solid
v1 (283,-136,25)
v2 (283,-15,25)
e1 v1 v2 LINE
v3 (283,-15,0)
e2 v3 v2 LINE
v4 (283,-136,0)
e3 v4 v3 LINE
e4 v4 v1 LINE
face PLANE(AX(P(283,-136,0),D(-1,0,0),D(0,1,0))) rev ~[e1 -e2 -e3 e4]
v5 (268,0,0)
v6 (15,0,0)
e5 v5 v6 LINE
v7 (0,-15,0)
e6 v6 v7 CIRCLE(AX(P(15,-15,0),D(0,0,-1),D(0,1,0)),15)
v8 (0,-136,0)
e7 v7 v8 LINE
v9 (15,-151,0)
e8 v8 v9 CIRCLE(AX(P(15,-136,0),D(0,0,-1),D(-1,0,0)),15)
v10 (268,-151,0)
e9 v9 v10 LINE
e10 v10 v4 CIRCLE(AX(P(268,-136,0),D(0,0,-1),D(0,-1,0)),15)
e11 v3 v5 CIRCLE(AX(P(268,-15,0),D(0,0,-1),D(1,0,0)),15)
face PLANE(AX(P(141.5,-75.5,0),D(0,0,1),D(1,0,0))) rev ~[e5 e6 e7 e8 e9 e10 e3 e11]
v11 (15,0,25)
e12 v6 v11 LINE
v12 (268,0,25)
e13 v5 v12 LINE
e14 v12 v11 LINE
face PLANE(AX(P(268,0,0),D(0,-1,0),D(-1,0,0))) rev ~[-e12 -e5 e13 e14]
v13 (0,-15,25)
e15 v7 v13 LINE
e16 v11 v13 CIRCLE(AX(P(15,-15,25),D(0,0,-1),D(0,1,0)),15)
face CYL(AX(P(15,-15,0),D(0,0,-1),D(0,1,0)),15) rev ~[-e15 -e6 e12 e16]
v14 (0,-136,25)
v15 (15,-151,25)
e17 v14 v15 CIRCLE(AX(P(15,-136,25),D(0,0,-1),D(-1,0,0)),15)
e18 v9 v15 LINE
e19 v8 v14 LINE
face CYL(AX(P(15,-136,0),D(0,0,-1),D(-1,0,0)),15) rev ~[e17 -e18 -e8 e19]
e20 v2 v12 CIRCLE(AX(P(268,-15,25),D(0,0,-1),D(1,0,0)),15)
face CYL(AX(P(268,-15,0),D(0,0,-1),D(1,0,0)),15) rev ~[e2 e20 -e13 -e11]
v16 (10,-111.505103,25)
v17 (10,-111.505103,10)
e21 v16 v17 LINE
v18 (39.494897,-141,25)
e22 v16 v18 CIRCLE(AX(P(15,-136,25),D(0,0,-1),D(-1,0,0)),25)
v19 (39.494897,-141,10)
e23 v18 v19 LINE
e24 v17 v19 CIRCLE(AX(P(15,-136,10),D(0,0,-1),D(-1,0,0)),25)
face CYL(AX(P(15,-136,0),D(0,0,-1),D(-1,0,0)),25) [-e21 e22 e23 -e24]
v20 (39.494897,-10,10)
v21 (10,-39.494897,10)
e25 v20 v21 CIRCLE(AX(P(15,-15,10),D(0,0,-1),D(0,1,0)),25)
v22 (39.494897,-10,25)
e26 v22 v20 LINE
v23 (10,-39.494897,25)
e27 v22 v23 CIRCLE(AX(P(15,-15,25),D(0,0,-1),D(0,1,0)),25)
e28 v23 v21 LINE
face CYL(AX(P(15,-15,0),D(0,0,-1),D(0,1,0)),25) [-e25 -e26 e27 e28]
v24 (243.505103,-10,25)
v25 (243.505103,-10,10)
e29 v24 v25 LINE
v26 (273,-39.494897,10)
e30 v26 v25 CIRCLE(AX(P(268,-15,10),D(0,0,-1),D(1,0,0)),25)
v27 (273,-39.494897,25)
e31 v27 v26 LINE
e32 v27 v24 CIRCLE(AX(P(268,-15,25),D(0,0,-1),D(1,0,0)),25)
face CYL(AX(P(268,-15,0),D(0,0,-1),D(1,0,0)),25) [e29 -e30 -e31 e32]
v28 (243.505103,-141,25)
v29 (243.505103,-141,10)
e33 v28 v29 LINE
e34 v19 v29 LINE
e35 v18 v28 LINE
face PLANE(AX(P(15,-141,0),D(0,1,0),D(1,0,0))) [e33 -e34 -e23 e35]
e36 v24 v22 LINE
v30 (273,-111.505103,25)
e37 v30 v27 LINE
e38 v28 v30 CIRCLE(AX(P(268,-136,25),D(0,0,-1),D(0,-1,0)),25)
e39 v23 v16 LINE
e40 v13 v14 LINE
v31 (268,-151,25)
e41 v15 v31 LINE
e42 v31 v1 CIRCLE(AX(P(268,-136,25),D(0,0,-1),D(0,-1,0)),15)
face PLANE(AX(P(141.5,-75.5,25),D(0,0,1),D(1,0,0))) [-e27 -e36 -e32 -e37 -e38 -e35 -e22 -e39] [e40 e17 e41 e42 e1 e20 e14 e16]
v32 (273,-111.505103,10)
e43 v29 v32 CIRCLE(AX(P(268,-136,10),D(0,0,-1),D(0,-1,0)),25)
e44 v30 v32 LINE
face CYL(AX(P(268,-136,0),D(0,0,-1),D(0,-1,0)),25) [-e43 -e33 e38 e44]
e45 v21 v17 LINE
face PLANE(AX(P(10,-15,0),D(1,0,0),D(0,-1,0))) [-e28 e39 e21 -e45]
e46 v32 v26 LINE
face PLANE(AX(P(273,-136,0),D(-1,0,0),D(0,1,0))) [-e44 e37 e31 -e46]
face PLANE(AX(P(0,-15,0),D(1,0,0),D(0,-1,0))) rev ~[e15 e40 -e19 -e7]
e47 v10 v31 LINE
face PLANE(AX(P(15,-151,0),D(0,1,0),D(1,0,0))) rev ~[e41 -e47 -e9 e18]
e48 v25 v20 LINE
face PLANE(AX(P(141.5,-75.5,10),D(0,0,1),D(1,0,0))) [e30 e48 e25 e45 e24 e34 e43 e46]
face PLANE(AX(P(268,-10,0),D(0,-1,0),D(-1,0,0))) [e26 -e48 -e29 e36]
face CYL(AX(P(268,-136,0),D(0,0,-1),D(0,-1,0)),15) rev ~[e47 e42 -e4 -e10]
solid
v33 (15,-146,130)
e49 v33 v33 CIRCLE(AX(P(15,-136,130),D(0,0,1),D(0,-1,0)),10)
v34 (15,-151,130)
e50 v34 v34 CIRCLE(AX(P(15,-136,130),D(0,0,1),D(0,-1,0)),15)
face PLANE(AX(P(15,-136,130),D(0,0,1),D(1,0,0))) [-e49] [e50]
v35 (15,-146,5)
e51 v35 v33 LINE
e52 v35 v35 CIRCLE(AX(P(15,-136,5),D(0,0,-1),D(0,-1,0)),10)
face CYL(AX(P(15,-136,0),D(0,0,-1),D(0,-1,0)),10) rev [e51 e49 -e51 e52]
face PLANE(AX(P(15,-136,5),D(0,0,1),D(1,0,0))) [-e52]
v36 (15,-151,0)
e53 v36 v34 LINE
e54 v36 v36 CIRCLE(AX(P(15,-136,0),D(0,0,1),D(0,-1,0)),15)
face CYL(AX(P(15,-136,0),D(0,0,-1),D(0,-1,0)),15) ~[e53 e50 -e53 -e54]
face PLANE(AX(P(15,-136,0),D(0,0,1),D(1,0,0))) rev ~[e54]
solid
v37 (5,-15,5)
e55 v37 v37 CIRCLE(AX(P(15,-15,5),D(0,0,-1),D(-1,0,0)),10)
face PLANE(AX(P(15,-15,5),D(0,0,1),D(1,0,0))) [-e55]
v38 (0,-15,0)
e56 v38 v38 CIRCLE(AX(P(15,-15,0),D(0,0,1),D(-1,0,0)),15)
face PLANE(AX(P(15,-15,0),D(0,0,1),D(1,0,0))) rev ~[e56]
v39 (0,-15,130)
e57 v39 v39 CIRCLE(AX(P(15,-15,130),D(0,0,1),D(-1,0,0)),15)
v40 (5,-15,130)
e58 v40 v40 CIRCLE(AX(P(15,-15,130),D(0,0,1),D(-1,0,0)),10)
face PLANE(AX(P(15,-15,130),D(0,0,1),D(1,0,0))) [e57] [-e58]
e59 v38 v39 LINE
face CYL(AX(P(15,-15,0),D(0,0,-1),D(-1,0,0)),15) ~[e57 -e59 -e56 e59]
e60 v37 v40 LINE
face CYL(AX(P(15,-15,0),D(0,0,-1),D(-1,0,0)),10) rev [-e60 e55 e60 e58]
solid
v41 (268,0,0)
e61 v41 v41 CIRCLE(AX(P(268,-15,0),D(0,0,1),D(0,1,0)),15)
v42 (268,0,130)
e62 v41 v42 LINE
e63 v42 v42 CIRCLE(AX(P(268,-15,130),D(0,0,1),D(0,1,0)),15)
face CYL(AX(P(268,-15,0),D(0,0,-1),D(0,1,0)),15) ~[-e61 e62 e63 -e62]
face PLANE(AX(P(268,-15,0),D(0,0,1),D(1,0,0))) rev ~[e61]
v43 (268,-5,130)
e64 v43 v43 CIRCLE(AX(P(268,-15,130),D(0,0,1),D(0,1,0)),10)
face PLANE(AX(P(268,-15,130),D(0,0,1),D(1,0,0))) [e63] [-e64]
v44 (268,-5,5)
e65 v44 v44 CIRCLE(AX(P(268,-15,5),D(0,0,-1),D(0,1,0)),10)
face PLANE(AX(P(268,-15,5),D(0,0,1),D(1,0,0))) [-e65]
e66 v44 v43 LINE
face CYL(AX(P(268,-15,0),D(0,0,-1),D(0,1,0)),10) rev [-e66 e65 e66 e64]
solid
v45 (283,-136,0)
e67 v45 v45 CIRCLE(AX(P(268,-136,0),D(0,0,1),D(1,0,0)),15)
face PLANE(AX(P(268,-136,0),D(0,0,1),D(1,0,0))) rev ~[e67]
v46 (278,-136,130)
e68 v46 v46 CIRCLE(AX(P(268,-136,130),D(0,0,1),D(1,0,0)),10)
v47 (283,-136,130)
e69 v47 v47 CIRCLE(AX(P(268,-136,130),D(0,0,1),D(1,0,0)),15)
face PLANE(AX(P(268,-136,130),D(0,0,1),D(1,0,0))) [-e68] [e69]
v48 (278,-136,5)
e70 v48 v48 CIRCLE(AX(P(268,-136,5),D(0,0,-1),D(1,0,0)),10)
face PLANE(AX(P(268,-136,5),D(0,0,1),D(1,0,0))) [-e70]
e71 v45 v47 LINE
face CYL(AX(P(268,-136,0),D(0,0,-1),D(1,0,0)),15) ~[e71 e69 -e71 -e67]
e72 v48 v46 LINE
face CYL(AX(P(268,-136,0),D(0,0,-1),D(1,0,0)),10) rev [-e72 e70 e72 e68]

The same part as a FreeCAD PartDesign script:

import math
import FreeCAD as App
import Part
import Sketcher
from FreeCAD import Vector


def faces_at(feature, points):
    """Names of the faces that lie closest to the given points."""
    faces = feature.Shape.Faces
    near = lambda p: min(range(len(faces)), key=lambda i: faces[i].distToShape(Part.Vertex(*p))[0])
    return sorted({f"Face{near(p) + 1}" for p in points})

doc = App.newDocument("Part")
params = doc.addObject("Spreadsheet::Sheet", "Params")
for row, (alias, value) in enumerate([
    ("sketch1_radius", "15 mm"),
    ("sketch1_width", "253 mm"),
    ("sketch1_height", "121 mm"),
    ("pad1_length", "25 mm"),
    ("thickness_wall", "10 mm"),
    ("sketch2_diameter", "30 mm"),
    ("pad2_length", "130 mm"),
    ("thickness2_wall", "5 mm"),
    ("sketch3_diameter", "30 mm"),
    ("pad3_length", "130 mm"),
    ("thickness3_wall", "5 mm"),
    ("sketch4_diameter", "30 mm"),
    ("pad4_length", "130 mm"),
    ("thickness4_wall", "5 mm"),
    ("sketch5_diameter", "30 mm"),
    ("pad5_length", "130 mm"),
    ("thickness5_wall", "5 mm"),
], start=1):
    params.set(f"A{row}", alias)
    params.set(f"B{row}", "=" + value)
    params.setAlias(f"B{row}", alias)

body = doc.addObject("PartDesign::Body", "Body")

# Sketch on XY plane
sketch1 = doc.addObject("Sketcher::SketchObject", "Sketch")
body.addObject(sketch1)
sketch1.AttachmentSupport = (doc.XY_Plane, [""])
sketch1.MapMode = "FlatFace"
sketch1.addGeometry(Part.LineSegment(Vector(268, 0, 0), Vector(15, 0, 0)), False)
sketch1.addGeometry(Part.ArcOfCircle(Part.Circle(Vector(15, -15, 0), Vector(0, 0, 1), 15), math.radians(180), math.radians(450)), False)
sketch1.addGeometry(Part.LineSegment(Vector(0, -15, 0), Vector(0, -136, 0)), False)
sketch1.addGeometry(Part.ArcOfCircle(Part.Circle(Vector(15, -136, 0), Vector(0, 0, 1), 15), math.radians(-90), math.radians(180)), False)
sketch1.addGeometry(Part.LineSegment(Vector(15, -151, 0), Vector(268, -151, 0)), False)
sketch1.addGeometry(Part.ArcOfCircle(Part.Circle(Vector(268, -136, 0), Vector(0, 0, 1), 15), math.radians(0), math.radians(270)), False)
sketch1.addGeometry(Part.LineSegment(Vector(283, -136, 0), Vector(283, -15, 0)), False)
sketch1.addGeometry(Part.ArcOfCircle(Part.Circle(Vector(268, -15, 0), Vector(0, 0, 1), 15), math.radians(90), math.radians(360)), False)
sketch1.addConstraint(Sketcher.Constraint("Tangent", 0, 2, 1, 2))
sketch1.addConstraint(Sketcher.Constraint("Tangent", 1, 1, 2, 1))
sketch1.addConstraint(Sketcher.Constraint("Tangent", 2, 2, 3, 2))
sketch1.addConstraint(Sketcher.Constraint("Tangent", 3, 1, 4, 1))
sketch1.addConstraint(Sketcher.Constraint("Tangent", 4, 2, 5, 2))
sketch1.addConstraint(Sketcher.Constraint("Tangent", 5, 1, 6, 1))
sketch1.addConstraint(Sketcher.Constraint("Tangent", 6, 2, 7, 2))
sketch1.addConstraint(Sketcher.Constraint("Tangent", 7, 1, 0, 1))
sketch1.addConstraint(Sketcher.Constraint("Horizontal", 0))
sketch1.addConstraint(Sketcher.Constraint("Vertical", 2))
sketch1.addConstraint(Sketcher.Constraint("Horizontal", 4))
sketch1.addConstraint(Sketcher.Constraint("Vertical", 6))
sketch1.addConstraint(Sketcher.Constraint("Equal", 1, 3))
sketch1.addConstraint(Sketcher.Constraint("Equal", 3, 5))
sketch1.addConstraint(Sketcher.Constraint("Equal", 5, 7))
sketch1.addConstraint(Sketcher.Constraint("PointOnObject", 0, 2, -1))
sketch1.addConstraint(Sketcher.Constraint("PointOnObject", 1, 1, -2))
sketch1.addConstraint(Sketcher.Constraint("Radius", 1, 15.0))
sketch1.addConstraint(Sketcher.Constraint("DistanceX", 0, 2, 0, 1, 253.0))
sketch1.addConstraint(Sketcher.Constraint("DistanceY", 2, 2, 2, 1, 121.0))
sketch1.setExpression("Constraints[17]", "Params.sketch1_radius")
sketch1.setExpression("Constraints[18]", "Params.sketch1_width")
sketch1.setExpression("Constraints[19]", "Params.sketch1_height")
pad1 = doc.addObject("PartDesign::Pad", "Pad")
body.addObject(pad1)
pad1.Profile = sketch1
pad1.setExpression("Length", "Params.pad1_length")
doc.recompute()

thickness = doc.addObject("PartDesign::Thickness", "Thickness")
body.addObject(thickness)
thickness.Base = (pad1, faces_at(pad1, [(141.5, -75.5, 25)]))
thickness.setExpression("Value", "Params.thickness_wall")
thickness.Reversed = True
thickness.Join = "Arc"
body2 = doc.addObject("PartDesign::Body", "Body001")

# Sketch on XY plane
sketch2 = doc.addObject("Sketcher::SketchObject", "Sketch001")
body2.addObject(sketch2)
sketch2.AttachmentSupport = (doc.getObject("XY_Plane001"), [""])
sketch2.MapMode = "FlatFace"
sketch2.addGeometry(Part.Circle(Vector(15, -15, 0), Vector(0, 0, 1), 15), False)
sketch2.addConstraint(Sketcher.Constraint("Diameter", 0, 30.0))
sketch2.addConstraint(Sketcher.Constraint("DistanceX", -1, 1, 0, 3, 15.0))
sketch2.addConstraint(Sketcher.Constraint("DistanceY", 0, 3, -1, 1, 15.0))
sketch2.setExpression("Constraints[0]", "Params.sketch2_diameter")
pad2 = doc.addObject("PartDesign::Pad", "Pad001")
body2.addObject(pad2)
pad2.Profile = sketch2
pad2.setExpression("Length", "Params.pad2_length")
doc.recompute()

thickness2 = doc.addObject("PartDesign::Thickness", "Thickness001")
body2.addObject(thickness2)
thickness2.Base = (pad2, faces_at(pad2, [(15, -15, 130)]))
thickness2.setExpression("Value", "Params.thickness2_wall")
thickness2.Reversed = True
thickness2.Join = "Arc"
body3 = doc.addObject("PartDesign::Body", "Body002")

# Sketch on XY plane
sketch3 = doc.addObject("Sketcher::SketchObject", "Sketch002")
body3.addObject(sketch3)
sketch3.AttachmentSupport = (doc.getObject("XY_Plane002"), [""])
sketch3.MapMode = "FlatFace"
sketch3.addGeometry(Part.Circle(Vector(15, -136, 0), Vector(0, 0, 1), 15), False)
sketch3.addConstraint(Sketcher.Constraint("Diameter", 0, 30.0))
sketch3.addConstraint(Sketcher.Constraint("DistanceX", -1, 1, 0, 3, 15.0))
sketch3.addConstraint(Sketcher.Constraint("DistanceY", 0, 3, -1, 1, 136.0))
sketch3.setExpression("Constraints[0]", "Params.sketch3_diameter")
pad3 = doc.addObject("PartDesign::Pad", "Pad002")
body3.addObject(pad3)
pad3.Profile = sketch3
pad3.setExpression("Length", "Params.pad3_length")
doc.recompute()

thickness3 = doc.addObject("PartDesign::Thickness", "Thickness002")
body3.addObject(thickness3)
thickness3.Base = (pad3, faces_at(pad3, [(15, -136, 130)]))
thickness3.setExpression("Value", "Params.thickness3_wall")
thickness3.Reversed = True
thickness3.Join = "Arc"
body4 = doc.addObject("PartDesign::Body", "Body003")

# Sketch on XY plane
sketch4 = doc.addObject("Sketcher::SketchObject", "Sketch003")
body4.addObject(sketch4)
sketch4.AttachmentSupport = (doc.getObject("XY_Plane003"), [""])
sketch4.MapMode = "FlatFace"
sketch4.addGeometry(Part.Circle(Vector(268, -136, 0), Vector(0, 0, 1), 15), False)
sketch4.addConstraint(Sketcher.Constraint("Diameter", 0, 30.0))
sketch4.addConstraint(Sketcher.Constraint("DistanceX", -1, 1, 0, 3, 268.0))
sketch4.addConstraint(Sketcher.Constraint("DistanceY", 0, 3, -1, 1, 136.0))
sketch4.setExpression("Constraints[0]", "Params.sketch4_diameter")
pad4 = doc.addObject("PartDesign::Pad", "Pad003")
body4.addObject(pad4)
pad4.Profile = sketch4
pad4.setExpression("Length", "Params.pad4_length")
doc.recompute()

thickness4 = doc.addObject("PartDesign::Thickness", "Thickness003")
body4.addObject(thickness4)
thickness4.Base = (pad4, faces_at(pad4, [(268, -136, 130)]))
thickness4.setExpression("Value", "Params.thickness4_wall")
thickness4.Reversed = True
thickness4.Join = "Arc"
body5 = doc.addObject("PartDesign::Body", "Body004")

# Sketch on XY plane
sketch5 = doc.addObject("Sketcher::SketchObject", "Sketch004")
body5.addObject(sketch5)
sketch5.AttachmentSupport = (doc.getObject("XY_Plane004"), [""])
sketch5.MapMode = "FlatFace"
sketch5.addGeometry(Part.Circle(Vector(268, -15, 0), Vector(0, 0, 1), 15), False)
sketch5.addConstraint(Sketcher.Constraint("Diameter", 0, 30.0))
sketch5.addConstraint(Sketcher.Constraint("DistanceX", -1, 1, 0, 3, 268.0))
sketch5.addConstraint(Sketcher.Constraint("DistanceY", 0, 3, -1, 1, 15.0))
sketch5.setExpression("Constraints[0]", "Params.sketch5_diameter")
pad5 = doc.addObject("PartDesign::Pad", "Pad004")
body5.addObject(pad5)
pad5.Profile = sketch5
pad5.setExpression("Length", "Params.pad5_length")
doc.recompute()

thickness5 = doc.addObject("PartDesign::Thickness", "Thickness004")
body5.addObject(thickness5)
thickness5.Base = (pad5, faces_at(pad5, [(268, -15, 130)]))
thickness5.setExpression("Value", "Params.thickness5_wall")
thickness5.Reversed = True
thickness5.Join = "Arc"

doc.recompute()
